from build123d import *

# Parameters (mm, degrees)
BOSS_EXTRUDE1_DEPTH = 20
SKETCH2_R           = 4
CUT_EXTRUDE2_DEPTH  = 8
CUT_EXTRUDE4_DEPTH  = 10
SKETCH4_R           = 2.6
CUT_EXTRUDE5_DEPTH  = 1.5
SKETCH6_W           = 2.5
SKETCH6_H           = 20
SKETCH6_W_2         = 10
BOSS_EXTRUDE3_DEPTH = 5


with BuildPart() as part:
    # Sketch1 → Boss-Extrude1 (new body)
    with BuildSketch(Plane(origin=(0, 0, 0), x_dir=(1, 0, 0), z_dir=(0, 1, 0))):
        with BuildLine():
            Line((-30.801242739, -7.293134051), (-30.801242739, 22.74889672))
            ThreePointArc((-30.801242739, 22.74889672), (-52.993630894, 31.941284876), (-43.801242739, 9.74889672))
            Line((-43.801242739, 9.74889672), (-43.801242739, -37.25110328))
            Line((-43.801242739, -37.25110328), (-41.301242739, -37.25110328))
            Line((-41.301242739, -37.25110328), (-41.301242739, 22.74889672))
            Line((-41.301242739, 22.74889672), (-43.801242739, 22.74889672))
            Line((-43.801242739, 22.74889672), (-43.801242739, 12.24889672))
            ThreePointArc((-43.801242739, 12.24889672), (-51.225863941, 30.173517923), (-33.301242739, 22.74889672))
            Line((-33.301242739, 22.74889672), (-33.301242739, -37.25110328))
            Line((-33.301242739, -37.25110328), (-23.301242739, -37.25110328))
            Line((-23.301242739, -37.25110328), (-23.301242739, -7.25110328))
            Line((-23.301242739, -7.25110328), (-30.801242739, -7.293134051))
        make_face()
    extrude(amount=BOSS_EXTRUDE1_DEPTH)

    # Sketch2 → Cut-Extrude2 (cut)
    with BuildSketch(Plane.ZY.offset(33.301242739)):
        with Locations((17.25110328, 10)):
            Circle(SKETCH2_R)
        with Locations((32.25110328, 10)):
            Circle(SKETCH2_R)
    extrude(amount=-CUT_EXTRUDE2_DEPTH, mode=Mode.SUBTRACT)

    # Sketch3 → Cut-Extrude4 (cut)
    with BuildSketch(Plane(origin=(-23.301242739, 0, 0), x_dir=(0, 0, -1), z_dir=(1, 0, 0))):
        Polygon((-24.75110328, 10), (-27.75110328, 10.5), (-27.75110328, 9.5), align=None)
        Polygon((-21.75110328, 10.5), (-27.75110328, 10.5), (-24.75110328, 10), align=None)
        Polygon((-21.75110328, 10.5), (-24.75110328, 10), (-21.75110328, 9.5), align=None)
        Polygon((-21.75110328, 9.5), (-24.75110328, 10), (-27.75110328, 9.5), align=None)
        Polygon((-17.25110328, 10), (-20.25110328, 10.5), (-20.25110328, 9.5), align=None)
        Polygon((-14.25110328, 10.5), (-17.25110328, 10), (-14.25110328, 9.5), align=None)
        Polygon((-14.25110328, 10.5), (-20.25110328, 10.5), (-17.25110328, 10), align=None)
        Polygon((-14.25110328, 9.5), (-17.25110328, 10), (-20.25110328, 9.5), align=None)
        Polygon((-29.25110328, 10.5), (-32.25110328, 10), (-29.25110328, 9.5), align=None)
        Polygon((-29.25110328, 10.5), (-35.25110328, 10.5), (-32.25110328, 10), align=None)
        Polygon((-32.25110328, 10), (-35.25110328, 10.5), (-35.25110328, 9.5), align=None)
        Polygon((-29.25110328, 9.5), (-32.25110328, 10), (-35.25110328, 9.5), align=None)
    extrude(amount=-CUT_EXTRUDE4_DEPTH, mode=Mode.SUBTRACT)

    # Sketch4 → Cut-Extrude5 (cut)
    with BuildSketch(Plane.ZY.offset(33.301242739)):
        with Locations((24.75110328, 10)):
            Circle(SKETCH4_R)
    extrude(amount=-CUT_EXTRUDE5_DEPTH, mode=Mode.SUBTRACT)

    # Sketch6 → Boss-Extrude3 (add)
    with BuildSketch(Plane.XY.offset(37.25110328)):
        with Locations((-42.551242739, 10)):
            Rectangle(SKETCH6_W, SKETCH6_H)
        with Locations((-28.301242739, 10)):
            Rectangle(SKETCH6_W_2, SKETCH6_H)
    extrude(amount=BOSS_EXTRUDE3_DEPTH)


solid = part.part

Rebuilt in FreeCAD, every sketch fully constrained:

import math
import FreeCAD as App
import Part
import Sketcher

doc = App.newDocument("Part")
params = doc.addObject("Spreadsheet::Sheet", "Params")
for row, (alias, value) in enumerate([
    ("sketch1_radius", "13 mm"),
    ("sketch1_radius2", "10.5 mm"),
    ("sketch1_width", "10 mm"),
    ("sketch1_height", "47 mm"),
    ("sketch1_height2", "30 mm"),
    ("pad1_length", "20 mm"),
    ("sketch2_diameter", "8 mm"),
    ("pocket1_length", "8 mm"),
    ("sketch3_width", "1 mm"),
    ("sketch3_height", "6 mm"),
    ("pocket2_length", "10 mm"),
    ("sketch4_diameter", "5.2 mm"),
    ("pocket3_length", "1.5 mm"),
    ("sketch5_width", "10 mm"),
    ("sketch5_height", "20 mm"),
    ("sketch5_width2", "2.5 mm"),
    ("pad2_length", "5 mm"),
], start=1):
    params.set(f"A{row}", alias)
    params.set(f"B{row}", "=" + value)
    params.setAlias(f"B{row}", alias)

body = doc.addObject("PartDesign::Body", "Body")

sketch1 = body.newObject("Sketcher::SketchObject", "Sketch")
sketch1.AttachmentSupport = (doc.getObject("XZ_Plane"), [""])
sketch1.MapMode = "FlatFace"
sketch1.addGeometry([
    Part.LineSegment(App.Vector(-30.8, 7.3, 0), App.Vector(-30.8, -22.7, 0)),
    Part.ArcOfCircle(Part.Circle(App.Vector(-43.8, -22.7, 0), App.Vector(0, 0, 1), 13), math.radians(90), math.radians(360)),
    Part.LineSegment(App.Vector(-43.8, -9.7, 0), App.Vector(-43.8, 37.3, 0)),
    Part.LineSegment(App.Vector(-43.8, 37.3, 0), App.Vector(-41.3, 37.3, 0)),
    Part.LineSegment(App.Vector(-41.3, 37.3, 0), App.Vector(-41.3, -22.7, 0)),
    Part.LineSegment(App.Vector(-41.3, -22.7, 0), App.Vector(-43.8, -22.7, 0)),
    Part.LineSegment(App.Vector(-43.8, -22.7, 0), App.Vector(-43.8, -12.2, 0)),
    Part.ArcOfCircle(Part.Circle(App.Vector(-43.8, -22.7, 0), App.Vector(0, 0, 1), 10.5), math.radians(90), math.radians(360)),
    Part.LineSegment(App.Vector(-33.3, -22.7, 0), App.Vector(-33.3, 37.3, 0)),
    Part.LineSegment(App.Vector(-33.3, 37.3, 0), App.Vector(-23.3, 37.3, 0)),
    Part.LineSegment(App.Vector(-23.3, 37.3, 0), App.Vector(-23.3, 7.3, 0)),
    Part.LineSegment(App.Vector(-23.3, 7.3, 0), App.Vector(-30.8, 7.3, 0)),
], False)
sketch1.addConstraint([
    Sketcher.Constraint("Tangent", 0, 2, 1, 2),
    Sketcher.Constraint("Coincident", 1, 1, 2, 1),
    Sketcher.Constraint("Coincident", 2, 2, 3, 1),
    Sketcher.Constraint("Coincident", 3, 2, 4, 1),
    Sketcher.Constraint("Coincident", 4, 2, 5, 1),
    Sketcher.Constraint("Coincident", 5, 2, 6, 1),
    Sketcher.Constraint("Coincident", 6, 2, 7, 1),
    Sketcher.Constraint("Tangent", 7, 2, 8, 1),
    Sketcher.Constraint("Coincident", 8, 2, 9, 1),
    Sketcher.Constraint("Coincident", 9, 2, 10, 1),
    Sketcher.Constraint("Coincident", 10, 2, 11, 1),
    Sketcher.Constraint("Coincident", 11, 2, 0, 1),
    Sketcher.Constraint("Vertical", 0),
    Sketcher.Constraint("Vertical", 2),
    Sketcher.Constraint("Horizontal", 3),
    Sketcher.Constraint("Vertical", 4),
    Sketcher.Constraint("Horizontal", 5),
    Sketcher.Constraint("Vertical", 6),
    Sketcher.Constraint("Vertical", 8),
    Sketcher.Constraint("Horizontal", 9),
    Sketcher.Constraint("Vertical", 10),
    Sketcher.Constraint("Coincident", 7, 3, 1, 3),
    Sketcher.Constraint("Coincident", 5, 2, 1, 3),
    Sketcher.Constraint("Horizontal", 3, 2, 8, 2),
    Sketcher.Constraint("Vertical", 7, 3, 1, 1),
    Sketcher.Constraint("Radius", 1, 13.0),
    Sketcher.Constraint("Radius", 7, 10.5),
    Sketcher.Constraint("DistanceX", 9, 1, 9, 2, 10.0),
    Sketcher.Constraint("DistanceY", 2, 1, 2, 2, 47.0),
    Sketcher.Constraint("DistanceY", 10, 2, 10, 1, 30.0),
    Sketcher.Constraint("DistanceX", 3, 1, 3, 2, 2.5),
    Sketcher.Constraint("DistanceY", 0, 2, 0, 1, 30.042031),
    Sketcher.Constraint("DistanceX", 1, 3, -1, 1, 43.801243),
    Sketcher.Constraint("DistanceY", 1, 3, -1, 1, 22.748897),
])
sketch1.setExpression("Constraints[25]", "Params.sketch1_radius")
sketch1.setExpression("Constraints[26]", "Params.sketch1_radius2")
sketch1.setExpression("Constraints[27]", "Params.sketch1_width")
sketch1.setExpression("Constraints[28]", "Params.sketch1_height")
sketch1.setExpression("Constraints[29]", "Params.sketch1_height2")
pad1 = body.newObject("PartDesign::Pad", "Pad")
pad1.Profile = sketch1
pad1.setExpression("Length", "Params.pad1_length")
pad1.Reversed = True

sketch2 = body.newObject("Sketcher::SketchObject", "Sketch001")
sketch2.AttachmentSupport = (doc.getObject("YZ_Plane"), [""])
sketch2.MapMode = "FlatFace"
sketch2.AttachmentOffset = App.Placement(App.Vector(0, 0, -33.301243), App.Rotation())
sketch2.addGeometry([
    Part.Circle(App.Vector(10, 17.3, 0), App.Vector(0, 0, 1), 4),
    Part.Circle(App.Vector(10, 32.3, 0), App.Vector(0, 0, 1), 4),
], False)
sketch2.addConstraint([
    Sketcher.Constraint("Equal", 0, 1),
    Sketcher.Constraint("Vertical", 0, 3, 1, 3),
    Sketcher.Constraint("Diameter", 0, 8.0),
    Sketcher.Constraint("DistanceX", -1, 1, 0, 3, 10.0),
    Sketcher.Constraint("DistanceY", 0, 3, 1, 3, 15.0),
    Sketcher.Constraint("DistanceY", -1, 1, 0, 3, 17.251103),
])
sketch2.setExpression("Constraints[2]", "Params.sketch2_diameter")
pocket1 = body.newObject("PartDesign::Pocket", "Pocket")
pocket1.Profile = sketch2
pocket1.setExpression("Length", "Params.pocket1_length")
pocket1.Reversed = True

sketch3 = body.newObject("Sketcher::SketchObject", "Sketch002")
sketch3.AttachmentSupport = (doc.getObject("YZ_Plane"), [""])
sketch3.MapMode = "FlatFace"
sketch3.AttachmentOffset = App.Placement(App.Vector(0, 0, -23.301243), App.Rotation())
sketch3.addGeometry([
    Part.LineSegment(App.Vector(10.5, 27.8, 0), App.Vector(9.5, 27.8, 0)),
    Part.LineSegment(App.Vector(9.5, 27.8, 0), App.Vector(9.5, 21.8, 0)),
    Part.LineSegment(App.Vector(9.5, 21.8, 0), App.Vector(10.5, 21.8, 0)),
    Part.LineSegment(App.Vector(10.5, 21.8, 0), App.Vector(10.5, 27.8, 0)),
    Part.LineSegment(App.Vector(10.5, 20.3, 0), App.Vector(9.5, 20.3, 0)),
    Part.LineSegment(App.Vector(9.5, 20.3, 0), App.Vector(9.5, 14.3, 0)),
    Part.LineSegment(App.Vector(9.5, 14.3, 0), App.Vector(10.5, 14.3, 0)),
    Part.LineSegment(App.Vector(10.5, 14.3, 0), App.Vector(10.5, 20.3, 0)),
    Part.LineSegment(App.Vector(9.5, 29.3, 0), App.Vector(10.5, 29.3, 0)),
    Part.LineSegment(App.Vector(10.5, 29.3, 0), App.Vector(10.5, 35.3, 0)),
    Part.LineSegment(App.Vector(10.5, 35.3, 0), App.Vector(9.5, 35.3, 0)),
    Part.LineSegment(App.Vector(9.5, 35.3, 0), App.Vector(9.5, 29.3, 0)),
], False)
sketch3.addConstraint([
    Sketcher.Constraint("Coincident", 0, 2, 1, 1),
    Sketcher.Constraint("Coincident", 1, 2, 2, 1),
    Sketcher.Constraint("Coincident", 2, 2, 3, 1),
    Sketcher.Constraint("Coincident", 3, 2, 0, 1),
    Sketcher.Constraint("Coincident", 4, 2, 5, 1),
    Sketcher.Constraint("Coincident", 5, 2, 6, 1),
    Sketcher.Constraint("Coincident", 6, 2, 7, 1),
    Sketcher.Constraint("Coincident", 7, 2, 4, 1),
    Sketcher.Constraint("Coincident", 8, 2, 9, 1),
    Sketcher.Constraint("Coincident", 9, 2, 10, 1),
    Sketcher.Constraint("Coincident", 10, 2, 11, 1),
    Sketcher.Constraint("Coincident", 11, 2, 8, 1),
    Sketcher.Constraint("Horizontal", 0),
    Sketcher.Constraint("Vertical", 1),
    Sketcher.Constraint("Horizontal", 2),
    Sketcher.Constraint("Vertical", 3),
    Sketcher.Constraint("Horizontal", 4),
    Sketcher.Constraint("Vertical", 5),
    Sketcher.Constraint("Horizontal", 6),
    Sketcher.Constraint("Vertical", 7),
    Sketcher.Constraint("Horizontal", 8),
    Sketcher.Constraint("Vertical", 9),
    Sketcher.Constraint("Horizontal", 10),
    Sketcher.Constraint("Vertical", 11),
    Sketcher.Constraint("Vertical", 1, 2, 4, 2),
    Sketcher.Constraint("Vertical", 3, 2, 6, 2),
    Sketcher.Constraint("Vertical", 7, 2, 8, 2),
    Sketcher.Constraint("Vertical", 5, 2, 10, 2),
    Sketcher.Constraint("Equal", 3, 5),
    Sketcher.Constraint("Equal", 7, 9),
    Sketcher.Constraint("DistanceX", 0, 2, 0, 1, 1.0),
    Sketcher.Constraint("DistanceY", 1, 2, 1, 1, 6.0),
    Sketcher.Constraint("DistanceY", 7, 2, 8, 2, 9.0),
    Sketcher.Constraint("DistanceX", -1, 1, 0, 2, 9.5),
    Sketcher.Constraint("DistanceY", 4, 2, 1, 2, 1.5),
    Sketcher.Constraint("DistanceY", -1, 1, 0, 2, 27.751103),
])
sketch3.setExpression("Constraints[30]", "Params.sketch3_width")
sketch3.setExpression("Constraints[31]", "Params.sketch3_height")
pocket2 = body.newObject("PartDesign::Pocket", "Pocket001")
pocket2.Profile = sketch3
pocket2.setExpression("Length", "Params.pocket2_length")

sketch4 = body.newObject("Sketcher::SketchObject", "Sketch003")
sketch4.AttachmentSupport = (doc.getObject("YZ_Plane"), [""])
sketch4.MapMode = "FlatFace"
sketch4.AttachmentOffset = App.Placement(App.Vector(0, 0, -33.301243), App.Rotation())
sketch4.addGeometry(Part.Circle(App.Vector(10, 24.8, 0), App.Vector(0, 0, 1), 2.6), False)
sketch4.addConstraint([
    Sketcher.Constraint("Diameter", 0, 5.2),
    Sketcher.Constraint("DistanceX", -1, 1, 0, 3, 10.0),
    Sketcher.Constraint("DistanceY", -1, 1, 0, 3, 24.751103),
])
sketch4.setExpression("Constraints[0]", "Params.sketch4_diameter")
pocket3 = body.newObject("PartDesign::Pocket", "Pocket002")
pocket3.Profile = sketch4
pocket3.setExpression("Length", "Params.pocket3_length")
pocket3.Reversed = True

sketch5 = body.newObject("Sketcher::SketchObject", "Sketch004")
sketch5.AttachmentSupport = (doc.getObject("XY_Plane"), [""])
sketch5.MapMode = "FlatFace"
sketch5.AttachmentOffset = App.Placement(App.Vector(0, 0, 37.251103), App.Rotation())
sketch5.addGeometry([
    Part.LineSegment(App.Vector(-43.8, 20, 0), App.Vector(-43.8, 0, 0)),
    Part.LineSegment(App.Vector(-43.8, 0, 0), App.Vector(-41.3, 0, 0)),
    Part.LineSegment(App.Vector(-41.3, 0, 0), App.Vector(-41.3, 20, 0)),
    Part.LineSegment(App.Vector(-41.3, 20, 0), App.Vector(-43.8, 20, 0)),
    Part.LineSegment(App.Vector(-33.3, 20, 0), App.Vector(-33.3, 0, 0)),
    Part.LineSegment(App.Vector(-33.3, 0, 0), App.Vector(-23.3, 0, 0)),
    Part.LineSegment(App.Vector(-23.3, 0, 0), App.Vector(-23.3, 20, 0)),
    Part.LineSegment(App.Vector(-23.3, 20, 0), App.Vector(-33.3, 20, 0)),
], False)
sketch5.addConstraint([
    Sketcher.Constraint("Coincident", 0, 2, 1, 1),
    Sketcher.Constraint("Coincident", 1, 2, 2, 1),
    Sketcher.Constraint("Coincident", 2, 2, 3, 1),
    Sketcher.Constraint("Coincident", 3, 2, 0, 1),
    Sketcher.Constraint("Coincident", 4, 2, 5, 1),
    Sketcher.Constraint("Coincident", 5, 2, 6, 1),
    Sketcher.Constraint("Coincident", 6, 2, 7, 1),
    Sketcher.Constraint("Coincident", 7, 2, 4, 1),
    Sketcher.Constraint("Vertical", 0),
    Sketcher.Constraint("Horizontal", 1),
    Sketcher.Constraint("Vertical", 2),
    Sketcher.Constraint("Horizontal", 3),
    Sketcher.Constraint("Vertical", 4),
    Sketcher.Constraint("Horizontal", 5),
    Sketcher.Constraint("Vertical", 6),
    Sketcher.Constraint("Horizontal", 7),
    Sketcher.Constraint("PointOnObject", 0, 2, -1),
    Sketcher.Constraint("PointOnObject", 4, 2, -1),
    Sketcher.Constraint("Horizontal", 3, 2, 6, 2),
    Sketcher.Constraint("DistanceX", 5, 1, 5, 2, 10.0),
    Sketcher.Constraint("DistanceY", 0, 2, 0, 1, 20.0),
    Sketcher.Constraint("DistanceX", 1, 1, 1, 2, 2.5),
    Sketcher.Constraint("DistanceX", 1, 2, 4, 2, 8.0),
    Sketcher.Constraint("DistanceX", 0, 2, -1, 1, 43.801243),
])
sketch5.setExpression("Constraints[19]", "Params.sketch5_width")
sketch5.setExpression("Constraints[20]", "Params.sketch5_height")
sketch5.setExpression("Constraints[21]", "Params.sketch5_width2")
pad2 = body.newObject("PartDesign::Pad", "Pad001")
pad2.Profile = sketch5
pad2.setExpression("Length", "Params.pad2_length")

doc.recompute()
